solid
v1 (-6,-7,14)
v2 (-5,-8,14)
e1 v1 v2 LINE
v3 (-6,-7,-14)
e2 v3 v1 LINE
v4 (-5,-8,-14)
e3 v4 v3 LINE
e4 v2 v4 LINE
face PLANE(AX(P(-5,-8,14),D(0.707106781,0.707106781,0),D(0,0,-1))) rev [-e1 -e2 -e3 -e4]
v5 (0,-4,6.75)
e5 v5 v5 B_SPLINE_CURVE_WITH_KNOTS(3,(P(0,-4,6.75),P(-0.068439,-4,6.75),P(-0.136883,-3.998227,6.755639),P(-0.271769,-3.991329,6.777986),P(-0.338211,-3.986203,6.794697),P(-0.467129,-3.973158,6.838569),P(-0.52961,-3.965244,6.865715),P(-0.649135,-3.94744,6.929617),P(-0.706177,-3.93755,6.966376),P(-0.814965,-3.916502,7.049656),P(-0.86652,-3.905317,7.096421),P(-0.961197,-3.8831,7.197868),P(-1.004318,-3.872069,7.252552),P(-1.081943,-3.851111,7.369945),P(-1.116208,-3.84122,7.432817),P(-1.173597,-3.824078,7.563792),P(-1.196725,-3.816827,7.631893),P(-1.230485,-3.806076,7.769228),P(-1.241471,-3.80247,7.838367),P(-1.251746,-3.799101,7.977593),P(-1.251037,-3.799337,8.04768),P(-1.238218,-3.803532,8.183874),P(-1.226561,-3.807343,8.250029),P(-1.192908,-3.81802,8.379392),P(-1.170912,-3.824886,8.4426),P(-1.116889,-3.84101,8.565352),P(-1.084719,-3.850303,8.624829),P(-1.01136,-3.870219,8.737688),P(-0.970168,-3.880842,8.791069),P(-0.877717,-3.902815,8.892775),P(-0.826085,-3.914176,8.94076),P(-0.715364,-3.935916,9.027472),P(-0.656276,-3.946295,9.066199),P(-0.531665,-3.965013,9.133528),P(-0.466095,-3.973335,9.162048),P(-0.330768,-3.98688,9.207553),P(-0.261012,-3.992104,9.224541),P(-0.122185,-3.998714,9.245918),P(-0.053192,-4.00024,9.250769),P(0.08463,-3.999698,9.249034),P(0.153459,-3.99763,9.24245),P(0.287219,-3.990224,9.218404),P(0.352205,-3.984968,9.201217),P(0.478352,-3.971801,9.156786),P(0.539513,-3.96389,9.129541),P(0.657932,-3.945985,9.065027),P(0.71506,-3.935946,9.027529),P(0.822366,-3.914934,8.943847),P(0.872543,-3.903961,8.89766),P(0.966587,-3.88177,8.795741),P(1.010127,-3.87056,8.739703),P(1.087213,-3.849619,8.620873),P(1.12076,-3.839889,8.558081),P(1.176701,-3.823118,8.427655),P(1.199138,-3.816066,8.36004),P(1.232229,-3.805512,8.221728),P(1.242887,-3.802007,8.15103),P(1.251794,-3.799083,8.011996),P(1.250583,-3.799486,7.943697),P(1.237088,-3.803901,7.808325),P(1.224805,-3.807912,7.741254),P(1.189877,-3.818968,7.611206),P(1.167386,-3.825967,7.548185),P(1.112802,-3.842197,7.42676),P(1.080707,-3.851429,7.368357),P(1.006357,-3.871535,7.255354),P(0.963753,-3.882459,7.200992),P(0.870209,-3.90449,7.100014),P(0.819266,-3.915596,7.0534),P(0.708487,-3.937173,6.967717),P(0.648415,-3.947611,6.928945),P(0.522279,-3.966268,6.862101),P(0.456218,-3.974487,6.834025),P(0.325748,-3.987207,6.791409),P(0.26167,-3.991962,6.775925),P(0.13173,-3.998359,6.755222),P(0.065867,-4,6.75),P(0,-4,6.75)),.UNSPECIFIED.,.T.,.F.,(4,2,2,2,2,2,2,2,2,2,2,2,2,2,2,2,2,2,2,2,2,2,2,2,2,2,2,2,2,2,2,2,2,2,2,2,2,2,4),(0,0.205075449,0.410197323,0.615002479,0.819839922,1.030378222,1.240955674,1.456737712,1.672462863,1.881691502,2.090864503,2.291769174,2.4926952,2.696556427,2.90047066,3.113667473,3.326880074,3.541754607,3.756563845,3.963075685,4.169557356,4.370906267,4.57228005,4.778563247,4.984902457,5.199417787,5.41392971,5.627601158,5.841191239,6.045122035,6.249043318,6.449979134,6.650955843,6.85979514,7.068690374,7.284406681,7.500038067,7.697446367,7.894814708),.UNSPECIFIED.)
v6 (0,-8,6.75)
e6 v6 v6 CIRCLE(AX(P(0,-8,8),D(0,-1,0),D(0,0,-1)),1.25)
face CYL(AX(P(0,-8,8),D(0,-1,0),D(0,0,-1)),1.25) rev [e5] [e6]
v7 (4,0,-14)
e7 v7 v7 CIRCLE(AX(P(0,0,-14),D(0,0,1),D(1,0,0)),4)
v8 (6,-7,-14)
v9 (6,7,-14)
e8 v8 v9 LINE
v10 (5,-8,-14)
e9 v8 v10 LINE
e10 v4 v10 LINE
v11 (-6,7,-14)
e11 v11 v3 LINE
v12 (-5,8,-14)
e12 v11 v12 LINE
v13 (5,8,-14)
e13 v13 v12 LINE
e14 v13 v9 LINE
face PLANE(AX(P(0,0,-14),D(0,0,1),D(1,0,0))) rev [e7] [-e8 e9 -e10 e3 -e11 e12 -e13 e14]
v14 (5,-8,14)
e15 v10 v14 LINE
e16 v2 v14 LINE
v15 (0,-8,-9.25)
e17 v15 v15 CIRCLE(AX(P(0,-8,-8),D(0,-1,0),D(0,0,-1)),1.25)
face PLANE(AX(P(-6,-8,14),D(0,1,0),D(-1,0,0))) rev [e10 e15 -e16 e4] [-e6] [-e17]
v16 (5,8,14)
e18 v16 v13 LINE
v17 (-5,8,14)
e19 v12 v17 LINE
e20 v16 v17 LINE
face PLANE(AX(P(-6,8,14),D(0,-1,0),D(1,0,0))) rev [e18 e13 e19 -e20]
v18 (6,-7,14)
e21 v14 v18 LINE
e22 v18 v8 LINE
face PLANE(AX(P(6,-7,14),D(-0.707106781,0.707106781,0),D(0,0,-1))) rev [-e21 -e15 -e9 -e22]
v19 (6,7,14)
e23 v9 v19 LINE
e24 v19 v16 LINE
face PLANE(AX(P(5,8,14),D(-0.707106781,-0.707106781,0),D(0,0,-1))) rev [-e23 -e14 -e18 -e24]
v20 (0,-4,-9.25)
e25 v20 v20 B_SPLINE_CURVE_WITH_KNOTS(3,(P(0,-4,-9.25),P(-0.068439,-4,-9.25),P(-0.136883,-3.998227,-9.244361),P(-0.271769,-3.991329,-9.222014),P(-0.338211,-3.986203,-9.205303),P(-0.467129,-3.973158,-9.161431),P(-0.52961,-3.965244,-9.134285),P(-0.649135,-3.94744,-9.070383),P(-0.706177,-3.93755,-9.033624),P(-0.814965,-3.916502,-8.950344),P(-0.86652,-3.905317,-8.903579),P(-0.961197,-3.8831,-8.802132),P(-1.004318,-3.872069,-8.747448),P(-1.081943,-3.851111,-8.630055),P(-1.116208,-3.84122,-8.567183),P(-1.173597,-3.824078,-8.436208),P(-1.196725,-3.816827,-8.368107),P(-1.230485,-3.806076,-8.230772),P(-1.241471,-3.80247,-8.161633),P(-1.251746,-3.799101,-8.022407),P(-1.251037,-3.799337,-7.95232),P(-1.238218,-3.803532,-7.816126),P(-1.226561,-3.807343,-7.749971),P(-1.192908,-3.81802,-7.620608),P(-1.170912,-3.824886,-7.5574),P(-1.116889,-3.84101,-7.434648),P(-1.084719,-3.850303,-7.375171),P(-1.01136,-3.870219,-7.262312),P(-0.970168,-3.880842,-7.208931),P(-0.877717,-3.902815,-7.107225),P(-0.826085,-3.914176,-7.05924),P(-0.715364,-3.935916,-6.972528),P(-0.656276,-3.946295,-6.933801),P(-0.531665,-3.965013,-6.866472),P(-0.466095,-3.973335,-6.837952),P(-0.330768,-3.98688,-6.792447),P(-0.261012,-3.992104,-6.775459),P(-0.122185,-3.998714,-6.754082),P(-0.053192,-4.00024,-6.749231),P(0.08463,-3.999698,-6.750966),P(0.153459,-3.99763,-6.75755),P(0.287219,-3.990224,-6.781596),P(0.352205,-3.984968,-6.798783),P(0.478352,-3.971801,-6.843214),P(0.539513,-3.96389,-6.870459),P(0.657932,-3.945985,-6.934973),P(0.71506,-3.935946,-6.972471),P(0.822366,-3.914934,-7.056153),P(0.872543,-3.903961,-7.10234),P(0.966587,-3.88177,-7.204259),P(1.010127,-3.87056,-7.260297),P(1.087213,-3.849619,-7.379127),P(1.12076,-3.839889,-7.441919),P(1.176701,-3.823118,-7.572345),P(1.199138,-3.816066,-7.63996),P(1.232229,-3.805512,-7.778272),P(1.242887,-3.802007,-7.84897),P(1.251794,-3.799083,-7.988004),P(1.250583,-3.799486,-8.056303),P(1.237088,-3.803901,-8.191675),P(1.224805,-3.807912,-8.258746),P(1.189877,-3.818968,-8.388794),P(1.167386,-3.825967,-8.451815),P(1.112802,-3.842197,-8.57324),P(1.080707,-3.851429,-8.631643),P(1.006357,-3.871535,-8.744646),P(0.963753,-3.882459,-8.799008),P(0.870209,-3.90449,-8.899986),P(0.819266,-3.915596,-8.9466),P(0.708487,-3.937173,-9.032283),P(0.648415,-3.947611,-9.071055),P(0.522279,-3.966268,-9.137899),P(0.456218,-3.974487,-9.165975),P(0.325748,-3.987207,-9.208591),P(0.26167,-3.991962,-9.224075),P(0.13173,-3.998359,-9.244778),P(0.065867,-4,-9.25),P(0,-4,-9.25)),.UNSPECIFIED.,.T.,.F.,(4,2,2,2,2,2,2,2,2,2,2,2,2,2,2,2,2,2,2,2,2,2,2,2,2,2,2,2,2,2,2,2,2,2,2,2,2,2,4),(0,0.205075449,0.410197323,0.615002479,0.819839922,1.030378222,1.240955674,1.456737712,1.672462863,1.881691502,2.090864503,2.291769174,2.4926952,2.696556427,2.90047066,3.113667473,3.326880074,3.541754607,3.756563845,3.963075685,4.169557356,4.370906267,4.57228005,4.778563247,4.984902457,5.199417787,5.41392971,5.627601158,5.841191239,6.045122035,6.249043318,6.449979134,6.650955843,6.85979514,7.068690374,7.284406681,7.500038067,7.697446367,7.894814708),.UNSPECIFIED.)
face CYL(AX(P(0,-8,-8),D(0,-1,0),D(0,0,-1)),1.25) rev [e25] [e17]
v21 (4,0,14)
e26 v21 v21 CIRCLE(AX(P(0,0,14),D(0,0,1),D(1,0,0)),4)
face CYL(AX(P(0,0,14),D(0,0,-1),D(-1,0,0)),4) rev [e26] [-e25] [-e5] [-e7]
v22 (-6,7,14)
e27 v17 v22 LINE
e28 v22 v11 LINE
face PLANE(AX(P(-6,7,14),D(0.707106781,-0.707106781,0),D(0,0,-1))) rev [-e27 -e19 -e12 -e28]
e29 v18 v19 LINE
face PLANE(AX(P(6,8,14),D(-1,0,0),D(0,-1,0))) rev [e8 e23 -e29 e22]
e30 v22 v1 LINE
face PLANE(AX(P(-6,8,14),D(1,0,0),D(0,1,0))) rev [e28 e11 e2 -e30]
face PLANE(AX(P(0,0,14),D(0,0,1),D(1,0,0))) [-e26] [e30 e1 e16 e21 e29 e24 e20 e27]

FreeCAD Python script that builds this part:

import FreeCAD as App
import Part
import Sketcher
from FreeCAD import Vector


def edges_at(feature, points):
    """Names of the edges that pass closest to the given points."""
    edges = feature.Shape.Edges
    near = lambda p: min(range(len(edges)), key=lambda i: edges[i].distToShape(Part.Vertex(*p))[0])
    return sorted({f"Edge{near(p) + 1}" for p in points})

doc = App.newDocument("Part")
body = doc.addObject("PartDesign::Body", "Body")

sketch1 = doc.addObject("Sketcher::SketchObject", "Sketch")
body.addObject(sketch1)
sketch1.AttachmentSupport = (doc.XY_Plane, [""])
sketch1.MapMode = "FlatFace"
sketch1.addGeometry([
    Part.LineSegment(Vector(-6, 8, 0), Vector(-6, -8, 0)),
    Part.LineSegment(Vector(-6, -8, 0), Vector(6, -8, 0)),
    Part.LineSegment(Vector(6, -8, 0), Vector(6, 8, 0)),
    Part.LineSegment(Vector(6, 8, 0), Vector(-6, 8, 0)),
    Part.Circle(Vector(0, 0, 0), Vector(0, 0, 1), 4),
], False)
sketch1.addConstraint([
    Sketcher.Constraint("Coincident", 0, 2, 1, 1),
    Sketcher.Constraint("Coincident", 1, 2, 2, 1),
    Sketcher.Constraint("Coincident", 2, 2, 3, 1),
    Sketcher.Constraint("Coincident", 3, 2, 0, 1),
    Sketcher.Constraint("Vertical", 0),
    Sketcher.Constraint("Horizontal", 1),
    Sketcher.Constraint("Vertical", 2),
    Sketcher.Constraint("Horizontal", 3),
    Sketcher.Constraint("Coincident", 4, 3, -1, 1),
    Sketcher.Constraint("Symmetric", 0, 2, 2, 2, -1, 1),
    Sketcher.Constraint("Diameter", 4, 8.0),
    Sketcher.Constraint("DistanceX", 1, 1, 1, 2, 12.0),
    Sketcher.Constraint("DistanceY", 0, 2, 0, 1, 16.0),
])
pad1 = doc.addObject("PartDesign::Pad", "Pad")
body.addObject(pad1)
pad1.Profile = sketch1
pad1.Length = 28
pad1.Midplane = True
doc.recompute()

chamfer = doc.addObject("PartDesign::Chamfer", "Chamfer")
body.addObject(chamfer)
chamfer.Base = (pad1, edges_at(pad1, [
    (-6, 8, 0),
    (6, 8, 0),
    (6, -8, 0),
    (-6, -8, 0),
]))
chamfer.Size = 1

sketch2 = doc.addObject("Sketcher::SketchObject", "Sketch001")
body.addObject(sketch2)
sketch2.AttachmentSupport = (doc.XZ_Plane, [""])
sketch2.MapMode = "FlatFace"
sketch2.AttachmentOffset = App.Placement(Vector(0, 0, 8), App.Rotation())
sketch2.addGeometry([
    Part.Circle(Vector(0, -8, 0), Vector(0, 0, 1), 1.25),
    Part.Circle(Vector(0, 8, 0), Vector(0, 0, 1), 1.25),
], False)
sketch2.addConstraint([
    Sketcher.Constraint("Equal", 0, 1),
    Sketcher.Constraint("Symmetric", 0, 3, 1, 3, -1, 1),
    Sketcher.Constraint("PointOnObject", 0, 3, -2),
    Sketcher.Constraint("Diameter", 0, 2.5),
    Sketcher.Constraint("DistanceY", 0, 3, -1, 1, 8.0),
])
doc.recompute()
hole = doc.addObject("PartDesign::Hole", "Hole")
body.addObject(hole)
hole.Profile = sketch2
hole.ThreadType = "None"
hole.Diameter = 2.5
hole.DepthType = "Dimension"
hole.Depth = 8.5
hole.DrillPoint = "Angled"
hole.DrillPointAngle = 118

doc.recompute()
